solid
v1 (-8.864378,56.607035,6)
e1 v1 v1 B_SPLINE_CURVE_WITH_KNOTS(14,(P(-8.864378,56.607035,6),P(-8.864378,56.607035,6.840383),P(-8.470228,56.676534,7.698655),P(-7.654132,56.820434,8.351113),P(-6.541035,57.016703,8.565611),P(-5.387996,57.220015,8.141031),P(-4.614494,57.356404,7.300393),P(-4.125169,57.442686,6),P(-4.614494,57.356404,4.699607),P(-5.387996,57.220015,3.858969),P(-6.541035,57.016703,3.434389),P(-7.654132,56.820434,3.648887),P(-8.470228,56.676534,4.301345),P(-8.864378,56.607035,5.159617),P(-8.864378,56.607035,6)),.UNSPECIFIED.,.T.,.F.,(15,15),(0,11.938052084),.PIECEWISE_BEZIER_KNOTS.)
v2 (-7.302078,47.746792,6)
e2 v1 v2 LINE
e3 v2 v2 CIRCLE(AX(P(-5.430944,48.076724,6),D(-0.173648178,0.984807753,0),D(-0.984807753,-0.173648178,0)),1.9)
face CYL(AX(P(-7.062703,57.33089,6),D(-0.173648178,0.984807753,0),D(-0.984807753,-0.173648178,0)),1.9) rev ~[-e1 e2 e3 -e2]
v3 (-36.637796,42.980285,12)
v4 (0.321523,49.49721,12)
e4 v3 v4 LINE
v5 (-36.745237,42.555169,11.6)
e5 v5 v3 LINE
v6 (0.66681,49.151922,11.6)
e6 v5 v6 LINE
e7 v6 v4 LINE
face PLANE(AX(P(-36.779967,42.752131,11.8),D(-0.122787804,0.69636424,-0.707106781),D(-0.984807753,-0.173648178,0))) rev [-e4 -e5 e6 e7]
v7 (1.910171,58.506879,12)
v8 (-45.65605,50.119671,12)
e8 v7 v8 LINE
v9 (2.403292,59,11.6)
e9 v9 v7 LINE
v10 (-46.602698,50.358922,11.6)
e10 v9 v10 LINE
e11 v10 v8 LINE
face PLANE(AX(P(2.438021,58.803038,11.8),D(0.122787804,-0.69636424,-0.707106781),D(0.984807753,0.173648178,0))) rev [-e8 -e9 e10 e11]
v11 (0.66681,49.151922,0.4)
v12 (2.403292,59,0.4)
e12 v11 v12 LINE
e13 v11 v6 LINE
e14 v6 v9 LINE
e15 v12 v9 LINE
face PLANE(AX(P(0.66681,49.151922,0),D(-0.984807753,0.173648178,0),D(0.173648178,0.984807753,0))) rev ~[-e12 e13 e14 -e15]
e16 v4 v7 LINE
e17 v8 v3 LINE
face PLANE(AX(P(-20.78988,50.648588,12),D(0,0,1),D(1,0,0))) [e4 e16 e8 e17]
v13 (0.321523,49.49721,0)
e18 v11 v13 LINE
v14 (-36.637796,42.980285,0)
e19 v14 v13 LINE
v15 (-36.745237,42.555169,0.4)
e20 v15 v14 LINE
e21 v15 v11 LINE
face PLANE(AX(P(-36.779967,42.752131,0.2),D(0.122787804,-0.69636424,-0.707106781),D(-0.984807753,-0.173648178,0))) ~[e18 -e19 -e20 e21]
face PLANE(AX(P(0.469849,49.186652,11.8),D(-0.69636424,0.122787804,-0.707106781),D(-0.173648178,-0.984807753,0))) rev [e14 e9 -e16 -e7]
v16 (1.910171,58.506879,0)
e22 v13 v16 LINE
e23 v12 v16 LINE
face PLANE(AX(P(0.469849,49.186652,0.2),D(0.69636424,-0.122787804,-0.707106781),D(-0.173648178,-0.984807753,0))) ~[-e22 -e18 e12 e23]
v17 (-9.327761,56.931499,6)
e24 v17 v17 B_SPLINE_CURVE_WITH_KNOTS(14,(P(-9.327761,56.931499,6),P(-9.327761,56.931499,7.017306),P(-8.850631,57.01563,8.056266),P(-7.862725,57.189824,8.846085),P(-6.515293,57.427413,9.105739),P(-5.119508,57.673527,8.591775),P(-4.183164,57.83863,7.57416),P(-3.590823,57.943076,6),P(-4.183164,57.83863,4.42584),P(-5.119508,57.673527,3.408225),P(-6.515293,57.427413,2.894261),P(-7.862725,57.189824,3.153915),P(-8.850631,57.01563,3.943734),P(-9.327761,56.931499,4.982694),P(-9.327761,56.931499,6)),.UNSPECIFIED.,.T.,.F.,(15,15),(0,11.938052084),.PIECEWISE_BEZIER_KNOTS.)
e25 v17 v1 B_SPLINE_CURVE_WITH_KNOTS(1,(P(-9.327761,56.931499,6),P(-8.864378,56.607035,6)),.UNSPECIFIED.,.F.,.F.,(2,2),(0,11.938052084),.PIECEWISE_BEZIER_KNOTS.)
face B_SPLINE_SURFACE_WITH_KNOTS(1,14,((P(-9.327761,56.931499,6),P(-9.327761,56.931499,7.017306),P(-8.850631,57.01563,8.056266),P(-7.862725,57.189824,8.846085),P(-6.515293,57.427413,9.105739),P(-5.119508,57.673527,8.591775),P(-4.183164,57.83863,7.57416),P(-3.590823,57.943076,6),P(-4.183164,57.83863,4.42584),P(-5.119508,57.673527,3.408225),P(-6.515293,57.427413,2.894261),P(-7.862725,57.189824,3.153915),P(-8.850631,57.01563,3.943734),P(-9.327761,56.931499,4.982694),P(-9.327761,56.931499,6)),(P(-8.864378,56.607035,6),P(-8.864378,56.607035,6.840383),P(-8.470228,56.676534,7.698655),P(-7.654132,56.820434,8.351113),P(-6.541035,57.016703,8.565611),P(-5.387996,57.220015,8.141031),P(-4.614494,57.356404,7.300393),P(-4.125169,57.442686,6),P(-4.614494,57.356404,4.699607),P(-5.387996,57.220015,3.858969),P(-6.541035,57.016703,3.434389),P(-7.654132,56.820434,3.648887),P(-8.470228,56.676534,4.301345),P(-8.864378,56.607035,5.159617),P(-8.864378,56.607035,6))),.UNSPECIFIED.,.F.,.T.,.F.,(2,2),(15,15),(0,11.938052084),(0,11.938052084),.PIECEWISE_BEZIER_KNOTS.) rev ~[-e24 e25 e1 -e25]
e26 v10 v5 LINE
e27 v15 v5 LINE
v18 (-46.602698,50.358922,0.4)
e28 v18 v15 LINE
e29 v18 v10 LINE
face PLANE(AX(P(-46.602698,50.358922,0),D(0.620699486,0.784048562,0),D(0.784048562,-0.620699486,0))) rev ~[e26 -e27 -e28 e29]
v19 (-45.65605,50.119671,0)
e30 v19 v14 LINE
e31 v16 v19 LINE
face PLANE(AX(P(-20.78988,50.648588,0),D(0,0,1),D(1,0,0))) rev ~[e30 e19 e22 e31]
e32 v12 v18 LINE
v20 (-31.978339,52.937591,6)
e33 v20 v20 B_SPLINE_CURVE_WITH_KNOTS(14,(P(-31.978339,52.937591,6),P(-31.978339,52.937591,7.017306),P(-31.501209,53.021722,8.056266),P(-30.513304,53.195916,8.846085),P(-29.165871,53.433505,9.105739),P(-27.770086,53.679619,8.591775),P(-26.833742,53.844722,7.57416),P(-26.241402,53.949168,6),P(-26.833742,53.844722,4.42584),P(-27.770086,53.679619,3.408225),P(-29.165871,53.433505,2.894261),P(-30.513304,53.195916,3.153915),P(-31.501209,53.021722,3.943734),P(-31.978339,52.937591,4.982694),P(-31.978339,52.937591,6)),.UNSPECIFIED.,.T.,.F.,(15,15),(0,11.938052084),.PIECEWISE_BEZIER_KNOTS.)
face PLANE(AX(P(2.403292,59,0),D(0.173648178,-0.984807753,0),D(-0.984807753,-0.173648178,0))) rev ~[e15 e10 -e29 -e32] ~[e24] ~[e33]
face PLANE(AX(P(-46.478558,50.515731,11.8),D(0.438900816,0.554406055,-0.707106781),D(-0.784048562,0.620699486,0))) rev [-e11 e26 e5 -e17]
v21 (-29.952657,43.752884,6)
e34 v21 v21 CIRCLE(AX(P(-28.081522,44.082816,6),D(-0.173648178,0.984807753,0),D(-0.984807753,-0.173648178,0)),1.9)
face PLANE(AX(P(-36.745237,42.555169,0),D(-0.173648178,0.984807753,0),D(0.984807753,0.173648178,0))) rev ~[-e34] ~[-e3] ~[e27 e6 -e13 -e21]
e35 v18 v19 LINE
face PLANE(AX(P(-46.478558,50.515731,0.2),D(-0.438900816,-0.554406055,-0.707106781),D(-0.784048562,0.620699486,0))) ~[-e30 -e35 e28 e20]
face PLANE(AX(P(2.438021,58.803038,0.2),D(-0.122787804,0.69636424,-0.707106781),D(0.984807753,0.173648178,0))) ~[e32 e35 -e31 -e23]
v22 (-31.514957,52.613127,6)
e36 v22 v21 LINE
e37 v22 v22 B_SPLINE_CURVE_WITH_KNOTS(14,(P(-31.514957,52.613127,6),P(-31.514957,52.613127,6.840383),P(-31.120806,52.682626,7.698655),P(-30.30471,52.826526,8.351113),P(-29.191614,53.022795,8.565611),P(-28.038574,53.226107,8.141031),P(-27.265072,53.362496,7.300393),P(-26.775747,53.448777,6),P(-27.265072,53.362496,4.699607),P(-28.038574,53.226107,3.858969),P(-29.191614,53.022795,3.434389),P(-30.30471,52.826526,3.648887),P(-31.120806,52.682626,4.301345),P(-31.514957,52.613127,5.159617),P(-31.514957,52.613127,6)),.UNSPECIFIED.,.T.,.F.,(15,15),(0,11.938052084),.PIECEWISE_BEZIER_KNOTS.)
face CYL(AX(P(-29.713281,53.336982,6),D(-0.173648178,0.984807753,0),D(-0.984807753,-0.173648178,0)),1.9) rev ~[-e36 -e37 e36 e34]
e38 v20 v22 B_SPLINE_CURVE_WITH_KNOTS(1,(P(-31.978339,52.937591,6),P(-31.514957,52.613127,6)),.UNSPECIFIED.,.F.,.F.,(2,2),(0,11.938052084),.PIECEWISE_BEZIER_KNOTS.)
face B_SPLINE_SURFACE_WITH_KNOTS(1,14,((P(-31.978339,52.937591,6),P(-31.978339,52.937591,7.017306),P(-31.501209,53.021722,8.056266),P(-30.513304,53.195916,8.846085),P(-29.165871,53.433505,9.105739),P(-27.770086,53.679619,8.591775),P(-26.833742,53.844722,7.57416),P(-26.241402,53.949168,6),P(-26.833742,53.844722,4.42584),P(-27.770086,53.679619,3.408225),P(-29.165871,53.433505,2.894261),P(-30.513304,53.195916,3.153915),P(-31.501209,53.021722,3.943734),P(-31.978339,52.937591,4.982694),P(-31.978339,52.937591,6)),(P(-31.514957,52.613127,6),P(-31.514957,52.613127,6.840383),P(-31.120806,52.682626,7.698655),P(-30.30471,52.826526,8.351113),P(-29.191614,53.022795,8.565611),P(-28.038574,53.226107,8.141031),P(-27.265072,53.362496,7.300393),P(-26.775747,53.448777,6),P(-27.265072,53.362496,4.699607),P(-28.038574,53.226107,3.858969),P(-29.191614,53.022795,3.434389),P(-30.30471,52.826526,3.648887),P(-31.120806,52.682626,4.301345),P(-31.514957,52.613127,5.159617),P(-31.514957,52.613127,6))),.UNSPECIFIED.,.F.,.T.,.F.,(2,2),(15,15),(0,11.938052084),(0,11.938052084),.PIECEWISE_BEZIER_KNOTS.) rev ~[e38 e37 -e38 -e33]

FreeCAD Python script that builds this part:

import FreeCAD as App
import Part
import Sketcher

V = App.Vector
Q = App.Units.Quantity


def edges_at(feature, points):
    """Names of the edges that pass closest to the given points."""
    edges = feature.Shape.Edges
    near = lambda p: min(range(len(edges)), key=lambda i: edges[i].distToShape(Part.Vertex(*p))[0])
    return sorted({f"Edge{near(p) + 1}" for p in points})

doc = App.newDocument("Part")
body = doc.addObject("PartDesign::Body", "Body")

sketch1 = body.newObject("Sketcher::SketchObject", "Sketch")
sketch1.AttachmentSupport = (doc.getObject("XY_Plane"), [""])
sketch1.MapMode = "FlatFace"
sketch1.addGeometry([
    Part.LineSegment(V(1, 49, 0), V(2, 59, 0)),
    Part.LineSegment(V(2, 59, 0), V(-47, 50, 0)),
    Part.LineSegment(V(-47, 50, 0), V(-37, 43, 0)),
    Part.LineSegment(V(-37, 43, 0), V(1, 49, 0)),
], False)
sketch1.addConstraint([
    Sketcher.Constraint("Coincident", 0, 2, 1, 1),
    Sketcher.Constraint("Coincident", 1, 2, 2, 1),
    Sketcher.Constraint("Coincident", 2, 2, 3, 1),
    Sketcher.Constraint("Coincident", 3, 2, 0, 1),
    Sketcher.Constraint("Parallel", 1, 3),
    Sketcher.Constraint("Angle", 0, Q("80 deg")),
    Sketcher.Constraint("Angle", 1, Q("-170 deg")),
    Sketcher.Constraint("Distance", 0, Q("10 mm")),
    Sketcher.Constraint("DistanceY", -1, 1, 0, 2, Q("59 mm")),
    Sketcher.Constraint("DistanceY", 3, 2, 1, 2, Q("1.206999 mm")),
    Sketcher.Constraint("DistanceX", 1, 2, -1, 1, Q("46.602698 mm")),
    Sketcher.Constraint("Distance", 3, Q("37.989189 mm")),
])
pad1 = body.newObject("PartDesign::Pad", "Pad")
pad1.Profile = sketch1
pad1.Length = 12
doc.recompute()

chamfer = body.newObject("PartDesign::Chamfer", "Chamfer")
chamfer.Base = (pad1, edges_at(pad1, [
    (1.535, 54.076, 12),
    (-22.1, 54.679, 12),
    (-41.674, 46.457, 12),
    (-18.039, 45.854, 12),
    (1.535, 54.076, 0),
    (-22.1, 54.679, 0),
    (-41.674, 46.457, 0),
    (-18.039, 45.854, 0),
]))
chamfer.Size = 0.4

sketch2 = body.newObject("Sketcher::SketchObject", "Sketch001")
sketch2.Placement = App.Placement(V(-10.017126, 56.809945, 0), App.Rotation(V(-0.984807753, -0.173648178, 0), V(0, 0, 1), V(-0.173648178, 0.984807753, 0), "ZXY"))
sketch2.addGeometry([
    Part.Circle(V(-3, 6, 0), V(0, 0, 1), 1.9),
    Part.Circle(V(20, 6, 0), V(0, 0, 1), 1.9),
], False)
sketch2.addConstraint([
    Sketcher.Constraint("Equal", 0, 1),
    Sketcher.Constraint("Horizontal", 0, 3, 1, 3),
    Sketcher.Constraint("Diameter", 0, Q("3.8 mm")),
    Sketcher.Constraint("DistanceX", 0, 3, -1, 1, Q("3 mm")),
    Sketcher.Constraint("DistanceY", -1, 1, 0, 3, Q("6 mm")),
    Sketcher.Constraint("DistanceX", -1, 1, 1, 3, Q("20 mm")),
])
pocket1 = body.newObject("PartDesign::Pocket", "Pocket")
pocket1.Profile = sketch2
pocket1.Type = "ThroughAll"
doc.recompute()

chamfer2 = body.newObject("PartDesign::Chamfer", "Chamfer001")
chamfer2.Base = (pocket1, edges_at(pocket1, [(-27.842, 53.667, 6), (-5.192, 57.661, 6)]))
chamfer2.Size = 0.4

doc.recompute()
